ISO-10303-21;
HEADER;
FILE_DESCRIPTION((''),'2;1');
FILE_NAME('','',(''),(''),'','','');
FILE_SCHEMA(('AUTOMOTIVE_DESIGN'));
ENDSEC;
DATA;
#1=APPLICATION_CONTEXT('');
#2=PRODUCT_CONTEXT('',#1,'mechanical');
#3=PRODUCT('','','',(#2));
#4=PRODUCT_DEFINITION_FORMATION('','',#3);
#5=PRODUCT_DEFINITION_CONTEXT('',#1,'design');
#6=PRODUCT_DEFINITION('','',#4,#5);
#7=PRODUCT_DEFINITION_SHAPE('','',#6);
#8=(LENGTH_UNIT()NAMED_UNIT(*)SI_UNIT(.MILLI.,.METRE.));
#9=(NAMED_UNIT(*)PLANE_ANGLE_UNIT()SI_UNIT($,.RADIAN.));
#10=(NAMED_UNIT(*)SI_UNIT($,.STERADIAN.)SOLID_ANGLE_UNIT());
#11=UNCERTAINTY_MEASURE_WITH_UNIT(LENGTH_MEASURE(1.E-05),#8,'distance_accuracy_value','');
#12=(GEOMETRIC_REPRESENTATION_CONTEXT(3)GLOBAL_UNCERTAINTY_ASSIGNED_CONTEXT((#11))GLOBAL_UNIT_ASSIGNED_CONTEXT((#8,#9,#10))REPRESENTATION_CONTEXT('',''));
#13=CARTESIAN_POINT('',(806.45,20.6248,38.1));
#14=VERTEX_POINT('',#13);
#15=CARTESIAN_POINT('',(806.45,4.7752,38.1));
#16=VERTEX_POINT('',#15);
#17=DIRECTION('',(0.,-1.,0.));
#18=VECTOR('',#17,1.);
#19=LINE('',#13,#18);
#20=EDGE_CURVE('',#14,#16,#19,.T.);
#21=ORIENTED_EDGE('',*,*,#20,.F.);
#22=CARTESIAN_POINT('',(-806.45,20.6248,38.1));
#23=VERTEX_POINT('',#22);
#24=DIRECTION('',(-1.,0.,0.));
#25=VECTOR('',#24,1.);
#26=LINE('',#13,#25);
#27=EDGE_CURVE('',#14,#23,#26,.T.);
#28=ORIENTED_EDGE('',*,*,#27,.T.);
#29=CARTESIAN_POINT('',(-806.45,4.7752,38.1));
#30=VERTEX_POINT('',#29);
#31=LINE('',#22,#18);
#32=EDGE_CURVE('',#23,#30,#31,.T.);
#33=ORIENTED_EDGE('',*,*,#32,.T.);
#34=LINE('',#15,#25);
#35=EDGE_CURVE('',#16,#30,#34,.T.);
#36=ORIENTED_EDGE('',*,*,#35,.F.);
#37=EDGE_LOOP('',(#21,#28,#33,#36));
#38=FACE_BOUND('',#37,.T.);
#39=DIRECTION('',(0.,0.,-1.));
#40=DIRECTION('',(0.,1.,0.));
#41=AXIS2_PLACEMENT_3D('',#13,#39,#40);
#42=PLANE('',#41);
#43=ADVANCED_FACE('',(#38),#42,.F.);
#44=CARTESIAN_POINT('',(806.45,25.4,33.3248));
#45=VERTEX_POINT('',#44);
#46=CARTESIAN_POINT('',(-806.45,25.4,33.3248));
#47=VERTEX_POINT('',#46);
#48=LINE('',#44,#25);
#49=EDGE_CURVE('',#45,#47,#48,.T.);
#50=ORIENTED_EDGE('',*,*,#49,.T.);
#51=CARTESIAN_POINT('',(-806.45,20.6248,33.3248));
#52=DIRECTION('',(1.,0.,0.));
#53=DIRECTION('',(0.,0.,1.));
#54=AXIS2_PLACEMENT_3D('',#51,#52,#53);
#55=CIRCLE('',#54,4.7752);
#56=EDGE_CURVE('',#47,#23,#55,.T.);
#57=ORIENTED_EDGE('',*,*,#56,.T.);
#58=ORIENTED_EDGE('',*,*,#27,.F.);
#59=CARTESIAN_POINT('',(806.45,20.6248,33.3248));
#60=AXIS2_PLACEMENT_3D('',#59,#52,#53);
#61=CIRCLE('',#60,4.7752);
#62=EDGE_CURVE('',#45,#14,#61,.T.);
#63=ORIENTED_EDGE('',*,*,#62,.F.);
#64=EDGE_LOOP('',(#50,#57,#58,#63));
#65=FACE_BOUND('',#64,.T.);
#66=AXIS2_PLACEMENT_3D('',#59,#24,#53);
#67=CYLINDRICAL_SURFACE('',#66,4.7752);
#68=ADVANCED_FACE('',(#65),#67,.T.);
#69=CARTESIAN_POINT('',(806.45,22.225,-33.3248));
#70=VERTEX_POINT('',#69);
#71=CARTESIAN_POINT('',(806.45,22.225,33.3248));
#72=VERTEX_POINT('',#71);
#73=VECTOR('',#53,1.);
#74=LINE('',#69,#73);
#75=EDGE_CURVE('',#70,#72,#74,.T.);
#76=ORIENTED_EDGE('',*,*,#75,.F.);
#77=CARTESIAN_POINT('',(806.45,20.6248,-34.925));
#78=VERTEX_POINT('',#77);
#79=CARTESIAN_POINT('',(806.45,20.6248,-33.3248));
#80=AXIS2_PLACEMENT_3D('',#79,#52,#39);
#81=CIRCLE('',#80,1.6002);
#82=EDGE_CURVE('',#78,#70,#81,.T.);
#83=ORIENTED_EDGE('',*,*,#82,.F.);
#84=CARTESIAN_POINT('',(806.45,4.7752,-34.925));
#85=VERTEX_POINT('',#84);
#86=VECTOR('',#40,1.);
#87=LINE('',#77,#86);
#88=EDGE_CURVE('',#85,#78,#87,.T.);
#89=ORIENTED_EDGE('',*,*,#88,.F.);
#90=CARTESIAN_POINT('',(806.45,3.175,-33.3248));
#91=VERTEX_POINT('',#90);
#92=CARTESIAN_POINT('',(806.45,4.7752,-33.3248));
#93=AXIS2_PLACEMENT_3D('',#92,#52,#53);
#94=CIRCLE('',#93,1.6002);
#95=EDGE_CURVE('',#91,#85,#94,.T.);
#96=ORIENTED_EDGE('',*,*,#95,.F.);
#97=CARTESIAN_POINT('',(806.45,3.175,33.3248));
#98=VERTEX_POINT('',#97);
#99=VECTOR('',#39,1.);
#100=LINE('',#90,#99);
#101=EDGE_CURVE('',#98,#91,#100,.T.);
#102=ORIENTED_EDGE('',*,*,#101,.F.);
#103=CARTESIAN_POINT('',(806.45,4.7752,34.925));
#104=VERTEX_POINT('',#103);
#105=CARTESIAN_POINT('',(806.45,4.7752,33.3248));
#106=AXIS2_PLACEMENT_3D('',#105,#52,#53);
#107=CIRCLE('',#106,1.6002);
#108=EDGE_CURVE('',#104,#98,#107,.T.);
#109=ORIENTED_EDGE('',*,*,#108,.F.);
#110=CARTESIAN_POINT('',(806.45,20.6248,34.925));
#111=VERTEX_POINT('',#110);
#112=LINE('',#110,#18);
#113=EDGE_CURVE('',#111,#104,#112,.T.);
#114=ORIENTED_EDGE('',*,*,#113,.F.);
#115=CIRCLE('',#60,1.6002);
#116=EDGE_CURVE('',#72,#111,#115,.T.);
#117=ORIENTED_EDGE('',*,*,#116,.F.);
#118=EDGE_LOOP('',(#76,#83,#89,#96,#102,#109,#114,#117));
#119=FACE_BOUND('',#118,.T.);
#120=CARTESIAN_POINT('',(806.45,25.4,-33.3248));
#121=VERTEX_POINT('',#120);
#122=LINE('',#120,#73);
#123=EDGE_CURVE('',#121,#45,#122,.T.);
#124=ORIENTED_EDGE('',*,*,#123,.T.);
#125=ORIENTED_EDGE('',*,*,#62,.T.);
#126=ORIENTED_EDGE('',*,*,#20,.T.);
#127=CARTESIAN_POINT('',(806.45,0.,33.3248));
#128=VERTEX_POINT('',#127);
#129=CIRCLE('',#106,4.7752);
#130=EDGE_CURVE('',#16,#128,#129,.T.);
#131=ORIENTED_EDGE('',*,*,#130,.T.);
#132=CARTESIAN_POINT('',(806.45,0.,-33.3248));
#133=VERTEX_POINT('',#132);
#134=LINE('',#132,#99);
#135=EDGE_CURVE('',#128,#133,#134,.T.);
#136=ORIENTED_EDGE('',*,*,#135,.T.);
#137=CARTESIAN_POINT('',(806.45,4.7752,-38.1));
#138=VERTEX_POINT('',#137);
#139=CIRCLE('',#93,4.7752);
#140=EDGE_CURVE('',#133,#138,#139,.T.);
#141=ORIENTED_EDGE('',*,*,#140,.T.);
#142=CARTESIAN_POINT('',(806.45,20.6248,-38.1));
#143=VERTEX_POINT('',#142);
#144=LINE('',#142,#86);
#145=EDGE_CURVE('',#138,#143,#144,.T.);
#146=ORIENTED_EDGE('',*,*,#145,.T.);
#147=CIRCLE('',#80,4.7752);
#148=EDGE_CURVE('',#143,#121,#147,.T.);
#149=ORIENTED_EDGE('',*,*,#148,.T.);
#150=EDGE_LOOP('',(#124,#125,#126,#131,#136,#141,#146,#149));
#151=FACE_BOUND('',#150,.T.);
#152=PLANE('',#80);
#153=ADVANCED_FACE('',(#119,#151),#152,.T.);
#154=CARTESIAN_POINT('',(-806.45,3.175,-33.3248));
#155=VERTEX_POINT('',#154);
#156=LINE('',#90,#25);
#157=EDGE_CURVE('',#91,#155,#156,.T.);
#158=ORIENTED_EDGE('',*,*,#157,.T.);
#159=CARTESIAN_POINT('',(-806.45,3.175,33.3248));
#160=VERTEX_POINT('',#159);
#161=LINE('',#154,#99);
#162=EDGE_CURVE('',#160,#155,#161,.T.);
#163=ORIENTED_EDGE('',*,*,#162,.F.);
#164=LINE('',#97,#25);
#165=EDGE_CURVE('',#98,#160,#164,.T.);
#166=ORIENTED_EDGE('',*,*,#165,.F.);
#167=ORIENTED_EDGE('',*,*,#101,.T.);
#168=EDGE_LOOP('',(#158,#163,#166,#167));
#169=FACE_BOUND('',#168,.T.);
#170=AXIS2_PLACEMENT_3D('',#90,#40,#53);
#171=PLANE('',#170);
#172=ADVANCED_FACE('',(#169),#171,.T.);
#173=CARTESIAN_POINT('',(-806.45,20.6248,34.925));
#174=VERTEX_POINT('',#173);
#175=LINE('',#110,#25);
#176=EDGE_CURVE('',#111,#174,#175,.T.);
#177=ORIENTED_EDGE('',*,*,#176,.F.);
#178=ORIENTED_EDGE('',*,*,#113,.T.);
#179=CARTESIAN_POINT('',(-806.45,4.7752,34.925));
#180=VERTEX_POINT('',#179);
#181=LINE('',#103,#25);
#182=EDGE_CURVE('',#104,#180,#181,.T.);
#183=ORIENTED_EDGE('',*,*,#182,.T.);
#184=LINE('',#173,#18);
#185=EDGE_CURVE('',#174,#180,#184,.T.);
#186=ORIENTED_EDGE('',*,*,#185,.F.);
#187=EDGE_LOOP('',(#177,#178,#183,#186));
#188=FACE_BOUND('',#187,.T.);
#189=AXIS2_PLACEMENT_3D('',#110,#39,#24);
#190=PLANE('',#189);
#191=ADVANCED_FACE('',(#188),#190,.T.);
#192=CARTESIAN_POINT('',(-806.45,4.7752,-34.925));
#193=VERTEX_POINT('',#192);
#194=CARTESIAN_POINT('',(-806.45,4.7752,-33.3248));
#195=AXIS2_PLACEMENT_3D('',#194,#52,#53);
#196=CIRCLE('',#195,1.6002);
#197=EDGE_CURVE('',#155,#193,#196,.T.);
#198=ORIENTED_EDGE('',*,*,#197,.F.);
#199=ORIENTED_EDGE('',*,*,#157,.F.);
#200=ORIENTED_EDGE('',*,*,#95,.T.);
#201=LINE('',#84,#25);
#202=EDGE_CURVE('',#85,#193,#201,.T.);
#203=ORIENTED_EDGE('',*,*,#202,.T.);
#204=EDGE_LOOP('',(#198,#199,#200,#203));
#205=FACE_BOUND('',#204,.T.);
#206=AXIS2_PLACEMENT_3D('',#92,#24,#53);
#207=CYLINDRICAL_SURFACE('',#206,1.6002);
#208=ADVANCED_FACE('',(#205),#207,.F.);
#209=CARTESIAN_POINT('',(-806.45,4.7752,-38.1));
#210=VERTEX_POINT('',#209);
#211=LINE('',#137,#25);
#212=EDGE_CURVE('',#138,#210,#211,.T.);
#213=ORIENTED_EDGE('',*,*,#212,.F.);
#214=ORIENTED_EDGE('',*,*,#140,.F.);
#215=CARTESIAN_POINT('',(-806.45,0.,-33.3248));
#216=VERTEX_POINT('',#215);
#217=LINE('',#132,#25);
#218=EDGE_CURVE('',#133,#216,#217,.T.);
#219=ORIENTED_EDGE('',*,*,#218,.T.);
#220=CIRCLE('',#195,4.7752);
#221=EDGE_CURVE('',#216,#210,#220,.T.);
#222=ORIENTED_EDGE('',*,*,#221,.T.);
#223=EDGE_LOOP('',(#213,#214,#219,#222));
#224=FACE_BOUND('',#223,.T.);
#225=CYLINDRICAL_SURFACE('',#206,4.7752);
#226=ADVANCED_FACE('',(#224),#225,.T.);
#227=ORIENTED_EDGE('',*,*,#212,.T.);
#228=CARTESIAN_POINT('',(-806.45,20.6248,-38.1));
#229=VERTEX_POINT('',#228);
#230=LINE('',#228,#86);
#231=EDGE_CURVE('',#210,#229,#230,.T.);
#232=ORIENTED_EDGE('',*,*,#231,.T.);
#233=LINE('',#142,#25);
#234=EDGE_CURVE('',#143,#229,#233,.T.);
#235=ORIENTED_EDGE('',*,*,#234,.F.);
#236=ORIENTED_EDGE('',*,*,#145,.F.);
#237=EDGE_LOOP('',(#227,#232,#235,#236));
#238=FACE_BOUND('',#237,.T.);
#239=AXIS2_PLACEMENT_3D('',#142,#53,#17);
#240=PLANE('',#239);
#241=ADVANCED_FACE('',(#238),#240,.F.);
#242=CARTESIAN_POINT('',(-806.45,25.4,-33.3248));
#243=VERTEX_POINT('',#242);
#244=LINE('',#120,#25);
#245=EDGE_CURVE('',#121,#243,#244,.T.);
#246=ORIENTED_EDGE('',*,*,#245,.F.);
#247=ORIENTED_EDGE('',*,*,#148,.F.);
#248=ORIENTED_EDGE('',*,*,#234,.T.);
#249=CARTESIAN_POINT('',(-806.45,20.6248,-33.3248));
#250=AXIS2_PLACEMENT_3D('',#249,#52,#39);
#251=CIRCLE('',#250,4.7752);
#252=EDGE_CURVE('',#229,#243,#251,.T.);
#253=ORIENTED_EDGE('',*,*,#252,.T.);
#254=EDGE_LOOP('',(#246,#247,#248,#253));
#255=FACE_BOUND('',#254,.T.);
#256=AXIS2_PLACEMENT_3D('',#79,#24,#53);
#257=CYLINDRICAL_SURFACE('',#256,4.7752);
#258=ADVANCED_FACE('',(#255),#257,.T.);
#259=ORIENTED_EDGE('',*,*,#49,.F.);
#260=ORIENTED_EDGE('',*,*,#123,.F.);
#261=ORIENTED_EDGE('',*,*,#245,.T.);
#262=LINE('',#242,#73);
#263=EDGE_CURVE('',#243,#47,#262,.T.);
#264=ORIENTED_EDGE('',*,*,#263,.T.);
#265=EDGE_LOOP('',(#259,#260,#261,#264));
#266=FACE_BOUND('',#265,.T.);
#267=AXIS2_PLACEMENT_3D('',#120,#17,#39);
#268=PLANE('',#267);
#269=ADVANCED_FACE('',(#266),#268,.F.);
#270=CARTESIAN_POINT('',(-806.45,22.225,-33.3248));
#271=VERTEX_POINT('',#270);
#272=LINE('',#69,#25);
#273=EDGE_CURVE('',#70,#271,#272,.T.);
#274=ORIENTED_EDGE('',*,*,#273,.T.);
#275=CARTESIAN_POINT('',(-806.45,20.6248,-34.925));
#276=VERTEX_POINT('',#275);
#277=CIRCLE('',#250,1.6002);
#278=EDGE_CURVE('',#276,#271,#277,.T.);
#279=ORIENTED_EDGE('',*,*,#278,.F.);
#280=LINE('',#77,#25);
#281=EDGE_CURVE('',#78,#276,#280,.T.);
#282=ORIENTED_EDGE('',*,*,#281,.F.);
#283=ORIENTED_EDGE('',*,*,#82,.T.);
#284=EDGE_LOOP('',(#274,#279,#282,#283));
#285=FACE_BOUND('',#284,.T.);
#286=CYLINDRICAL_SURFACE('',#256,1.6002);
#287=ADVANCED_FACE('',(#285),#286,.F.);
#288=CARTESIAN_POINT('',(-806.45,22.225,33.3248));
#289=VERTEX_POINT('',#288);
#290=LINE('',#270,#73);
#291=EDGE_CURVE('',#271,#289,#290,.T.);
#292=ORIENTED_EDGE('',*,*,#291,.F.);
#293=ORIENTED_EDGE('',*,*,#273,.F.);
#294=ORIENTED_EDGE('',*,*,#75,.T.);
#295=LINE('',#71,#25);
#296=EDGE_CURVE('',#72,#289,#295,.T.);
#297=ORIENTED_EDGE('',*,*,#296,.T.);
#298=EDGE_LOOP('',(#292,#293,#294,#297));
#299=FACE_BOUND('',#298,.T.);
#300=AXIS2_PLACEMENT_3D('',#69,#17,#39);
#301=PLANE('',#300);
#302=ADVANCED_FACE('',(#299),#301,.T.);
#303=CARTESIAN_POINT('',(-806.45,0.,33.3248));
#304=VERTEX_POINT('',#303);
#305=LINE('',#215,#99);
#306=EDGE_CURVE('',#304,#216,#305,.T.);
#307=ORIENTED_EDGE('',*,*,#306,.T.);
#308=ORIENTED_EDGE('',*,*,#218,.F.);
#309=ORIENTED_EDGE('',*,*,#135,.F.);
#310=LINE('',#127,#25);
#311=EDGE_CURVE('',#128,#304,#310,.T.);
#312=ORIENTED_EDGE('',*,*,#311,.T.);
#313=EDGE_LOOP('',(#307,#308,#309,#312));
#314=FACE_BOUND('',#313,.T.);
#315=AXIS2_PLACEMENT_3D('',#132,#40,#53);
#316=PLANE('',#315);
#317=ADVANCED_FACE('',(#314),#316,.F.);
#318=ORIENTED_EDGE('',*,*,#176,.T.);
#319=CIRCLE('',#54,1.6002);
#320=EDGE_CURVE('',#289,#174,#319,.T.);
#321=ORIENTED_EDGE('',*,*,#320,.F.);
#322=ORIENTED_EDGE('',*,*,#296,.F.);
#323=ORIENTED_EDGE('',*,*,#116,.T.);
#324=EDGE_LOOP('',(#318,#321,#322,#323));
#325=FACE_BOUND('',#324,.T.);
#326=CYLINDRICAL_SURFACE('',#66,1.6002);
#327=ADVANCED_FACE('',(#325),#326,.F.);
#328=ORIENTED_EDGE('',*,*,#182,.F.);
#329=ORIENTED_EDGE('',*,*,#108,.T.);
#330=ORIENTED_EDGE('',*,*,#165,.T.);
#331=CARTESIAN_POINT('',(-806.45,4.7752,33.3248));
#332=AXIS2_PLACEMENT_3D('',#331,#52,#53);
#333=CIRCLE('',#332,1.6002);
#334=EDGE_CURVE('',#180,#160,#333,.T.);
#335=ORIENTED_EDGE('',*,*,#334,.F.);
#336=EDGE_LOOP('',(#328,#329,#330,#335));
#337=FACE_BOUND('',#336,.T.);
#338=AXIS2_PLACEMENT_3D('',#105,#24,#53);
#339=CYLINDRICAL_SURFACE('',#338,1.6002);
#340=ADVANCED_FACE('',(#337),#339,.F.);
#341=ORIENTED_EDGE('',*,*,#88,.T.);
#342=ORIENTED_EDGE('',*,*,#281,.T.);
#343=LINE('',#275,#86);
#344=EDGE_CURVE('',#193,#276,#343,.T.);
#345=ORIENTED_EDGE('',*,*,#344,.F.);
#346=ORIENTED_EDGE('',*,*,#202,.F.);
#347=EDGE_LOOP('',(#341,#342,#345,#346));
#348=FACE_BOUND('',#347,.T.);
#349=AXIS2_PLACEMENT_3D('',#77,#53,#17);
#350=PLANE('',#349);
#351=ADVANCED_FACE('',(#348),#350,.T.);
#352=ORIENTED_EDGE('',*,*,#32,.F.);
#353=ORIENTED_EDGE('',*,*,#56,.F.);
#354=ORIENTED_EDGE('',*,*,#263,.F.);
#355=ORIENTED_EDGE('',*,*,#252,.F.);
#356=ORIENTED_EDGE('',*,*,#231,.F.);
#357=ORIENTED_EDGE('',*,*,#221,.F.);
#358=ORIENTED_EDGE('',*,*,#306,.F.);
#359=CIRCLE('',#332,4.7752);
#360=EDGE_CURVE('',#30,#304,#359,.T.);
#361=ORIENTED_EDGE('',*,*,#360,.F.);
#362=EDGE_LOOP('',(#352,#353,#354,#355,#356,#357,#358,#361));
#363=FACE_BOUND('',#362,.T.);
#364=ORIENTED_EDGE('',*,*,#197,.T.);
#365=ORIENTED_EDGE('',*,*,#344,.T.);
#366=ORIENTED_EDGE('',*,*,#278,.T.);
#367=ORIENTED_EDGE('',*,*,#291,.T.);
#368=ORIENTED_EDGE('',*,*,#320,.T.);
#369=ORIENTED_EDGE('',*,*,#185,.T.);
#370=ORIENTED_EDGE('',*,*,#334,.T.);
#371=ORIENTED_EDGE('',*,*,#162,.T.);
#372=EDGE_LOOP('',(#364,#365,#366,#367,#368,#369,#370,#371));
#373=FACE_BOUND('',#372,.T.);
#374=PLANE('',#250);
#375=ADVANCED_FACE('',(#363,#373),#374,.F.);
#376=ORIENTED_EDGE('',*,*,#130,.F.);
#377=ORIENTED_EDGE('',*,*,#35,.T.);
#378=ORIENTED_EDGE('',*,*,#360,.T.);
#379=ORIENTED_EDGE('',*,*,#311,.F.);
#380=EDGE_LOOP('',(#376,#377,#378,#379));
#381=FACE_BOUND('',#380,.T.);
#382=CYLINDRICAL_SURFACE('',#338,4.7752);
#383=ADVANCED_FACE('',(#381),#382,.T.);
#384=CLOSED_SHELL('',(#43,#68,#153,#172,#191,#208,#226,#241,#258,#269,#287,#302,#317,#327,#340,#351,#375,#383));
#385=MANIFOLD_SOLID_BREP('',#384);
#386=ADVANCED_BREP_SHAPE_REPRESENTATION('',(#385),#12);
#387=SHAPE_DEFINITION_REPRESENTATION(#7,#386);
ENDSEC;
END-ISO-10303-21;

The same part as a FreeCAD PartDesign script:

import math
import FreeCAD as App
import Part
import Sketcher
from FreeCAD import Vector
Q = App.Units.Quantity

doc = App.newDocument("Part")
body = doc.addObject("PartDesign::Body", "Body")

sketch1 = body.newObject("Sketcher::SketchObject", "Sketch")
sketch1.AttachmentSupport = (doc.getObject("YZ_Plane"), [""])
sketch1.MapMode = "FlatFace"
sketch1.addGeometry([
    Part.LineSegment(Vector(25.4, -33.3248, 0), Vector(25.4, 33.3248, 0)),
    Part.ArcOfCircle(Part.Circle(Vector(20.6248, 33.3248, 0), Vector(0, 0, 1), 4.7752), math.radians(0), math.radians(90)),
    Part.LineSegment(Vector(20.6248, 38.1, 0), Vector(4.7752, 38.1, 0)),
    Part.ArcOfCircle(Part.Circle(Vector(4.7752, 33.3248, 0), Vector(0, 0, 1), 4.7752), math.radians(90), math.radians(180)),
    Part.LineSegment(Vector(0, 33.3248, 0), Vector(0, -33.3248, 0)),
    Part.ArcOfCircle(Part.Circle(Vector(4.7752, -33.3248, 0), Vector(0, 0, 1), 4.7752), math.radians(180), math.radians(270)),
    Part.LineSegment(Vector(4.7752, -38.1, 0), Vector(20.6248, -38.1, 0)),
    Part.ArcOfCircle(Part.Circle(Vector(20.6248, -33.3248, 0), Vector(0, 0, 1), 4.7752), math.radians(-90), math.radians(0)),
    Part.LineSegment(Vector(22.225, 33.3248, 0), Vector(22.225, -33.3248, 0)),
    Part.ArcOfCircle(Part.Circle(Vector(20.6248, -33.3248, 0), Vector(0, 0, 1), 1.6002), math.radians(-90), math.radians(0)),
    Part.LineSegment(Vector(20.6248, -34.925, 0), Vector(4.7752, -34.925, 0)),
    Part.ArcOfCircle(Part.Circle(Vector(4.7752, -33.3248, 0), Vector(0, 0, 1), 1.6002), math.radians(-180), math.radians(-90)),
    Part.LineSegment(Vector(3.175, -33.3248, 0), Vector(3.175, 33.3248, 0)),
    Part.ArcOfCircle(Part.Circle(Vector(4.7752, 33.3248, 0), Vector(0, 0, 1), 1.6002), math.radians(90), math.radians(180)),
    Part.LineSegment(Vector(4.7752, 34.925, 0), Vector(20.6248, 34.925, 0)),
    Part.ArcOfCircle(Part.Circle(Vector(20.6248, 33.3248, 0), Vector(0, 0, 1), 1.6002), math.radians(0), math.radians(90)),
], False)
sketch1.addConstraint([
    Sketcher.Constraint("Tangent", 0, 2, 1, 1),
    Sketcher.Constraint("Tangent", 1, 2, 2, 1),
    Sketcher.Constraint("Tangent", 2, 2, 3, 1),
    Sketcher.Constraint("Tangent", 3, 2, 4, 1),
    Sketcher.Constraint("Tangent", 4, 2, 5, 1),
    Sketcher.Constraint("Tangent", 5, 2, 6, 1),
    Sketcher.Constraint("Tangent", 6, 2, 7, 1),
    Sketcher.Constraint("Tangent", 7, 2, 0, 1),
    Sketcher.Constraint("Tangent", 8, 2, 9, 2),
    Sketcher.Constraint("Tangent", 9, 1, 10, 1),
    Sketcher.Constraint("Tangent", 10, 2, 11, 2),
    Sketcher.Constraint("Tangent", 11, 1, 12, 1),
    Sketcher.Constraint("Tangent", 12, 2, 13, 2),
    Sketcher.Constraint("Tangent", 13, 1, 14, 1),
    Sketcher.Constraint("Tangent", 14, 2, 15, 2),
    Sketcher.Constraint("Tangent", 15, 1, 8, 1),
    Sketcher.Constraint("Vertical", 0),
    Sketcher.Constraint("Horizontal", 2),
    Sketcher.Constraint("Vertical", 4),
    Sketcher.Constraint("Horizontal", 6),
    Sketcher.Constraint("Vertical", 8),
    Sketcher.Constraint("Horizontal", 10),
    Sketcher.Constraint("Vertical", 12),
    Sketcher.Constraint("Horizontal", 14),
    Sketcher.Constraint("Coincident", 9, 3, 7, 3),
    Sketcher.Constraint("Coincident", 11, 3, 5, 3),
    Sketcher.Constraint("Coincident", 13, 3, 3, 3),
    Sketcher.Constraint("Equal", 1, 3),
    Sketcher.Constraint("Equal", 3, 5),
    Sketcher.Constraint("Equal", 5, 7),
    Sketcher.Constraint("Equal", 13, 15),
    Sketcher.Constraint("Symmetric", 3, 2, 4, 2, -1, 1),
    Sketcher.Constraint("DistanceX", -1, 1, 0, 2, Q("1 in")),
    Sketcher.Constraint("Radius", 1, Q("0.188 in")),
    Sketcher.Constraint("Radius", 9, Q("0.063 in")),
    Sketcher.Constraint("DistanceY", -1, 1, 1, 2, Q("1.5 in")),
])
pad1 = body.newObject("PartDesign::Pad", "Pad")
pad1.Profile = sketch1
pad1.Length = Q("63.5 in")
pad1.Midplane = True

doc.recompute()
